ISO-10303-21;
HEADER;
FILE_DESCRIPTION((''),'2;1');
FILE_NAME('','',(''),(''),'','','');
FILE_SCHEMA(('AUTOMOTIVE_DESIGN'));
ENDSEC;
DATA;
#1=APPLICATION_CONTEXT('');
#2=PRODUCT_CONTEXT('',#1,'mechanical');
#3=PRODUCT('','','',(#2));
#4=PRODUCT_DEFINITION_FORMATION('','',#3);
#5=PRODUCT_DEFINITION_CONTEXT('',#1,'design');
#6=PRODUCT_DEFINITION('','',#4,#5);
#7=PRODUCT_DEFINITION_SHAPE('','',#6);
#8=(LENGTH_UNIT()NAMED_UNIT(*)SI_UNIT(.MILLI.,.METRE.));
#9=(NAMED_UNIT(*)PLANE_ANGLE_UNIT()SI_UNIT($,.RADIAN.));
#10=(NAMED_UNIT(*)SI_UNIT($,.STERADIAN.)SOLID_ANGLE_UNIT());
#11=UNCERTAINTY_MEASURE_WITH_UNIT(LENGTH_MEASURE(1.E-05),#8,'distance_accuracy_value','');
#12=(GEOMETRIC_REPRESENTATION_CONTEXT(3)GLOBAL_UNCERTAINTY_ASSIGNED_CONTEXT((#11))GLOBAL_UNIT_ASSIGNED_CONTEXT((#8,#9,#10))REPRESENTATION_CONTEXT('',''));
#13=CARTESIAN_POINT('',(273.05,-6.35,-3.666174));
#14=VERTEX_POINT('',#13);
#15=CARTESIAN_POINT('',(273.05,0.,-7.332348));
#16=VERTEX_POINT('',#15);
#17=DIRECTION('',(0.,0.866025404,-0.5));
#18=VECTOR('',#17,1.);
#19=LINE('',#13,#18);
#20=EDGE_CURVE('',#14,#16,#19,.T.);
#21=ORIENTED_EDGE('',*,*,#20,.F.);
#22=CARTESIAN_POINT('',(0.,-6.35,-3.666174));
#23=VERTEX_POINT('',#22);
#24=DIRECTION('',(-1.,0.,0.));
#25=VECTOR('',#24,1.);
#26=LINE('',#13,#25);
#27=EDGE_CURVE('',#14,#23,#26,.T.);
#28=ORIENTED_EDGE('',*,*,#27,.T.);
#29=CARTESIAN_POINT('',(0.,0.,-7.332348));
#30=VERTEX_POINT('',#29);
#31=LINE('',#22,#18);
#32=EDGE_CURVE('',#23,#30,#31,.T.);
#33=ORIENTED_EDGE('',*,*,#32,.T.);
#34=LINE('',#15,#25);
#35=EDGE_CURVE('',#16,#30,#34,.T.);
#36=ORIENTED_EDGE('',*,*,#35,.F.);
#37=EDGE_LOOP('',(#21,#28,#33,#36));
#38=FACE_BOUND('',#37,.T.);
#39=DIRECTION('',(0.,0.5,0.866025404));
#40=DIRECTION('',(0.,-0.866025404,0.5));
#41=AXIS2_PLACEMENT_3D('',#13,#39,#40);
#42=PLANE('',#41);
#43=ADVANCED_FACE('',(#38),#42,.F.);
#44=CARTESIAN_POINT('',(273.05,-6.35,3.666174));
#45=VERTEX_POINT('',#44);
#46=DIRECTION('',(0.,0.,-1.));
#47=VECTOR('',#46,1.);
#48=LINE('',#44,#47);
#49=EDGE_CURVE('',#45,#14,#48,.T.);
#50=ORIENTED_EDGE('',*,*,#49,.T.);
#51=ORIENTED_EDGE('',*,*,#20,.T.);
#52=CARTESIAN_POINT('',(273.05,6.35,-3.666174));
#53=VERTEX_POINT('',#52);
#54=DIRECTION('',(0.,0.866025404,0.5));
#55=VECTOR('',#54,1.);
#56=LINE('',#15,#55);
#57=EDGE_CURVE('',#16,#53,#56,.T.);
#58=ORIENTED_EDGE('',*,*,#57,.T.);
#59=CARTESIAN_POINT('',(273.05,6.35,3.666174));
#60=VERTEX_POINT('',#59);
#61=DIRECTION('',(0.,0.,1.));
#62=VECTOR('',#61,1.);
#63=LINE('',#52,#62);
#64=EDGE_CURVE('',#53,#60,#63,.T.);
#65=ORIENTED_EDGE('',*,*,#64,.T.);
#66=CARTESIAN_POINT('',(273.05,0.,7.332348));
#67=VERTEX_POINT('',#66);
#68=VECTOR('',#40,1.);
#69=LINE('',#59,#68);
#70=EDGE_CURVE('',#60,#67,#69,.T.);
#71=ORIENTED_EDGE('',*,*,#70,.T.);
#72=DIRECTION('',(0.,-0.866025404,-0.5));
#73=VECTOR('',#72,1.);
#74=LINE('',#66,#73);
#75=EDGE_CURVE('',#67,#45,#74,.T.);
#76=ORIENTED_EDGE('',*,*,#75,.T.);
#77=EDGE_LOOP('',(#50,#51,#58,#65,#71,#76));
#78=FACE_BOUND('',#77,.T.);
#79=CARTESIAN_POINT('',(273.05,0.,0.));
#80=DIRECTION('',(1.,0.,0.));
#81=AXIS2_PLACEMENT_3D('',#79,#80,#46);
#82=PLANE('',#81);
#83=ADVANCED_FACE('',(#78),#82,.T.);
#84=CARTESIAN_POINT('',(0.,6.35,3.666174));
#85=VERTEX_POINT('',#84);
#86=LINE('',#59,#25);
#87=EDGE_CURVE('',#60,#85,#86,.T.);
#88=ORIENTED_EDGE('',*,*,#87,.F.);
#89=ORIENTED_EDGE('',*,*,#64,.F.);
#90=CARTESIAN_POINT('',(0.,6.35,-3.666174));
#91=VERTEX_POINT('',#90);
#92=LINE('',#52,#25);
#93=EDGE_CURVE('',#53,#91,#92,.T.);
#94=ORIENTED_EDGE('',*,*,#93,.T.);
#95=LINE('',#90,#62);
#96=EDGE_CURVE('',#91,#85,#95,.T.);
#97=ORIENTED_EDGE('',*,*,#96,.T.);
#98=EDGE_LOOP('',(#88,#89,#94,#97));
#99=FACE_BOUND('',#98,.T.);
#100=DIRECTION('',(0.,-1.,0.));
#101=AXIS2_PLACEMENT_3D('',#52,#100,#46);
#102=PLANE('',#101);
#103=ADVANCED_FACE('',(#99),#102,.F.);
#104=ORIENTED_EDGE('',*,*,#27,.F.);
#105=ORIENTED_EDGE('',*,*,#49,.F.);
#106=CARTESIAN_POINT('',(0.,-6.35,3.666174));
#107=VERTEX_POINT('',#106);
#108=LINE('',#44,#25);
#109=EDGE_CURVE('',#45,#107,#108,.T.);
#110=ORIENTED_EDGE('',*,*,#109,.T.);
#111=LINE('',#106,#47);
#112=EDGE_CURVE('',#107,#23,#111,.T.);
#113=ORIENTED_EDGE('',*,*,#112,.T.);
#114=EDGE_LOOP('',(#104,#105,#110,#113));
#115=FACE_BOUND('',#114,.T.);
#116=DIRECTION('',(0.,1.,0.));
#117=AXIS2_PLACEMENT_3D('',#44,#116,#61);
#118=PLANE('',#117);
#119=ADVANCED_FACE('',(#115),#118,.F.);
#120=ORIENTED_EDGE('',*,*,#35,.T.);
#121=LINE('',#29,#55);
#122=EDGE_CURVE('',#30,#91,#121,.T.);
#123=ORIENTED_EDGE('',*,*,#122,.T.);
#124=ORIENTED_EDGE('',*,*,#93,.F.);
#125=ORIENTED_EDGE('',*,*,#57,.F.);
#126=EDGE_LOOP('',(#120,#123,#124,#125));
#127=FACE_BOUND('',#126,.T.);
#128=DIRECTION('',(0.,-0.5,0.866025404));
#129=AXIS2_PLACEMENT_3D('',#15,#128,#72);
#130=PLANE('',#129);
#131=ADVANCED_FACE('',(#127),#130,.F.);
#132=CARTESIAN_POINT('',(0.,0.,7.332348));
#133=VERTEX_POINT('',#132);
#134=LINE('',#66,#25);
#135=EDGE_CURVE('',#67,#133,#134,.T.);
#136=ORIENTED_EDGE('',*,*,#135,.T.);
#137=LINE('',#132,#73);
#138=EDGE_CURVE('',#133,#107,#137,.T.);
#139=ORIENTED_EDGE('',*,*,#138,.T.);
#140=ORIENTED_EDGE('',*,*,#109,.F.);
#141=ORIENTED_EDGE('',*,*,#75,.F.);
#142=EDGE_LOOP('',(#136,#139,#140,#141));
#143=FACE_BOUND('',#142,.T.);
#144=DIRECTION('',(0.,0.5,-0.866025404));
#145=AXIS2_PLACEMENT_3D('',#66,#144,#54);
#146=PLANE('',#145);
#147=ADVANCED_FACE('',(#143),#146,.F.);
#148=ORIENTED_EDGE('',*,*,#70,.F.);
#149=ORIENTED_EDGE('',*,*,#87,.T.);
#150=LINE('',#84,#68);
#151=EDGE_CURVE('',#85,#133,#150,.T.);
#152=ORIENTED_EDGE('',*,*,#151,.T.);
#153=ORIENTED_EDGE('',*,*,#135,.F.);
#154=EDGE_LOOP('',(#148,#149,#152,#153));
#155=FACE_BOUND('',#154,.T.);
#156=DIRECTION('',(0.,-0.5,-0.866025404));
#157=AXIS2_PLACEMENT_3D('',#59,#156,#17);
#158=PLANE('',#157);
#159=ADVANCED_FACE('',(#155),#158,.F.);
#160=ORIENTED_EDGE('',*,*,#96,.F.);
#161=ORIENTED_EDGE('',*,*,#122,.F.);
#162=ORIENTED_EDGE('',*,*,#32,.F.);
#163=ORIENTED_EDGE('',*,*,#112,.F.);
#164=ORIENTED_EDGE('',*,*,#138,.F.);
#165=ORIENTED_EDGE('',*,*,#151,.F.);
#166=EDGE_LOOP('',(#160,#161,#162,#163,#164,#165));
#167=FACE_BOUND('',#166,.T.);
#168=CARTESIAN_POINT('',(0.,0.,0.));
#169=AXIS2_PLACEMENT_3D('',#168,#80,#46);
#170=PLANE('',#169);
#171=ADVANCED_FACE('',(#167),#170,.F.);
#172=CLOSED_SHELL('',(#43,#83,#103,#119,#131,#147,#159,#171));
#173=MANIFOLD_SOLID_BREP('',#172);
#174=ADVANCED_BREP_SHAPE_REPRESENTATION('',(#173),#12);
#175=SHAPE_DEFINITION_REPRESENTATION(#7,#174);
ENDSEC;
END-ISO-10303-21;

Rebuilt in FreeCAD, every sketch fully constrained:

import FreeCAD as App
import Part
import Sketcher
Q = App.Units.Quantity

doc = App.newDocument("Part")
params = doc.addObject("Spreadsheet::Sheet", "Params")
for row, (alias, value) in enumerate([
    ("pad1_length", "10.75 in"),
], start=1):
    params.set(f"A{row}", alias)
    params.set(f"B{row}", "=" + value)
    params.setAlias(f"B{row}", alias)

body = doc.addObject("PartDesign::Body", "Body")

sketch1 = doc.addObject("Sketcher::SketchObject", "Sketch")
body.addObject(sketch1)
sketch1.AttachmentSupport = (doc.YZ_Plane, [""])
sketch1.MapMode = "FlatFace"
sketch1.addGeometry(Part.LineSegment(App.Vector(0, -7, 0), App.Vector(6, -4, 0)), False)
sketch1.addGeometry(Part.LineSegment(App.Vector(6, -4, 0), App.Vector(6, 4, 0)), False)
sketch1.addGeometry(Part.LineSegment(App.Vector(6, 4, 0), App.Vector(0, 7, 0)), False)
sketch1.addGeometry(Part.LineSegment(App.Vector(0, 7, 0), App.Vector(-6, 4, 0)), False)
sketch1.addGeometry(Part.LineSegment(App.Vector(-6, 4, 0), App.Vector(-6, -4, 0)), False)
sketch1.addGeometry(Part.LineSegment(App.Vector(-6, -4, 0), App.Vector(0, -7, 0)), False)
sketch1.addConstraint(Sketcher.Constraint("Coincident", 0, 2, 1, 1))
sketch1.addConstraint(Sketcher.Constraint("Coincident", 1, 2, 2, 1))
sketch1.addConstraint(Sketcher.Constraint("Coincident", 2, 2, 3, 1))
sketch1.addConstraint(Sketcher.Constraint("Coincident", 3, 2, 4, 1))
sketch1.addConstraint(Sketcher.Constraint("Coincident", 4, 2, 5, 1))
sketch1.addConstraint(Sketcher.Constraint("Coincident", 5, 2, 0, 1))
sketch1.addConstraint(Sketcher.Constraint("Vertical", 1))
sketch1.addConstraint(Sketcher.Constraint("Vertical", 4))
sketch1.addConstraint(Sketcher.Constraint("Symmetric", 0, 2, 3, 2, -1, 1))
sketch1.addConstraint(Sketcher.Constraint("Symmetric", 2, 2, 5, 2, -1, 1))
sketch1.addConstraint(Sketcher.Constraint("PointOnObject", 2, 2, -2))
sketch1.addConstraint(Sketcher.Constraint("Parallel", 2, 5))
sketch1.addConstraint(Sketcher.Constraint("Horizontal", 1, 2, 3, 2))
sketch1.addConstraint(Sketcher.Constraint("Angle", 0, Q("30 deg")))
sketch1.addConstraint(Sketcher.Constraint("DistanceX", 3, 2, 1, 2, Q("0.5 in")))
sketch1.addConstraint(Sketcher.Constraint("DistanceY", 1, 1, 1, 2, Q("7.332348 mm")))
pad1 = doc.addObject("PartDesign::Pad", "Pad")
body.addObject(pad1)
pad1.Profile = sketch1
pad1.setExpression("Length", "Params.pad1_length")

doc.recompute()
